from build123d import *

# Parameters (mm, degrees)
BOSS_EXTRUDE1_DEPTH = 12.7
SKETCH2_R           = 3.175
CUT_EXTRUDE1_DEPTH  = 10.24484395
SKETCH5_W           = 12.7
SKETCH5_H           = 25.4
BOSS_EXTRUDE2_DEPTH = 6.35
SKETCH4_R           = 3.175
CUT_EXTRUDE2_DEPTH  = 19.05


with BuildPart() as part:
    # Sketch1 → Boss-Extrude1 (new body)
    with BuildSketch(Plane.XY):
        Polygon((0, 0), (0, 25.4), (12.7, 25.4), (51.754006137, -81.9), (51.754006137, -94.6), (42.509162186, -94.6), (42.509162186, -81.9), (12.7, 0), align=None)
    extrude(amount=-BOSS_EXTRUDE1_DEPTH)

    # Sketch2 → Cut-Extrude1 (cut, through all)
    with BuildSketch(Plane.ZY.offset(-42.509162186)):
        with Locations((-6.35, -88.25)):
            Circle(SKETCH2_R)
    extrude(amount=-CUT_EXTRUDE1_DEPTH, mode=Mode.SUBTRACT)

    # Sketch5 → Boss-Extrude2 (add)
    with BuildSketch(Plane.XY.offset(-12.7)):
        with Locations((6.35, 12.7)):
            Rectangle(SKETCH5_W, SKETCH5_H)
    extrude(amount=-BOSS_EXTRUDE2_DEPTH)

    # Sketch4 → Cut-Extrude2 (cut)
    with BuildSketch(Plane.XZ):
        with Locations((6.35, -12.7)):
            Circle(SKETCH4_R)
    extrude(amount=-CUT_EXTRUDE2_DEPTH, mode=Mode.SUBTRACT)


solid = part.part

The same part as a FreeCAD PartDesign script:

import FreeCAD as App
import Part
import Sketcher
Q = App.Units.Quantity


def add_polygon(sketch, points):
    """Adds a closed chain of lines whose ends are joined by coincident constraints."""
    first, n = sketch.GeometryCount, len(points)
    for a, b in zip(points, points[1:] + points[:1]):
        sketch.addGeometry(Part.LineSegment(App.Vector(*a, 0), App.Vector(*b, 0)), False)
    for i in range(n):
        sketch.addConstraint(Sketcher.Constraint("Coincident", first + i, 2, first + (i + 1) % n, 1))

doc = App.newDocument("Part")
body = doc.addObject("PartDesign::Body", "Body")

# Sketch on XY plane
sketch1 = body.newObject("Sketcher::SketchObject", "Sketch")
sketch1.AttachmentSupport = (doc.getObject("XY_Plane"), [""])
sketch1.MapMode = "FlatFace"
add_polygon(sketch1, [(0, 25), (0, 0), (13, 0), (43, -82), (43, -95), (52, -95), (52, -82), (13, 25)])  # lines 0-7
sketch1.addConstraint([
    Sketcher.Constraint("Vertical", 0),
    Sketcher.Constraint("Horizontal", 1),
    Sketcher.Constraint("Vertical", 3),
    Sketcher.Constraint("Horizontal", 4),
    Sketcher.Constraint("Vertical", 5),
    Sketcher.Constraint("Horizontal", 7),
    Sketcher.Constraint("Coincident", 0, 2, -1, 1),
    Sketcher.Constraint("Parallel", 2, 6),
    Sketcher.Constraint("Horizontal", 2, 2, 5, 2),
    Sketcher.Constraint("Vertical", 1, 2, 6, 2),
    Sketcher.Constraint("Equal", 7, 3),
    Sketcher.Constraint("DistanceY", 0, 2, 0, 1, Q("1 in")),
    Sketcher.Constraint("DistanceX", 1, 1, 1, 2, Q("0.5 in")),
    Sketcher.Constraint("Angle", 2, Q("-70 deg")),
    Sketcher.Constraint("DistanceY", 2, 2, -1, 1, Q("81.9 mm")),
])
pad1 = body.newObject("PartDesign::Pad", "Pad")
pad1.Profile = sketch1
pad1.Length = Q("0.5 in")
pad1.Reversed = True

# Sketch on YZ plane
sketch2 = body.newObject("Sketcher::SketchObject", "Sketch001")
sketch2.AttachmentSupport = (doc.getObject("YZ_Plane"), [""])
sketch2.MapMode = "FlatFace"
sketch2.AttachmentOffset = App.Placement(App.Vector(0, 0, 42.509162), App.Rotation())
sketch2.addGeometry(Part.Circle(App.Vector(-88.2, -6.3, 0), App.Vector(0, 0, 1), 3.2), False)
sketch2.addConstraint([
    Sketcher.Constraint("Diameter", 0, Q("0.25 in")),
    Sketcher.Constraint("DistanceY", 0, 3, -1, 1, Q("0.25 in")),
    Sketcher.Constraint("DistanceX", 0, 3, -1, 1, Q("88.25 mm")),
])
pocket1 = body.newObject("PartDesign::Pocket", "Pocket")
pocket1.Profile = sketch2
pocket1.Type = "ThroughAll"
pocket1.Reversed = True

# Sketch on XY plane
sketch3 = body.newObject("Sketcher::SketchObject", "Sketch002")
sketch3.AttachmentSupport = (doc.getObject("XY_Plane"), [""])
sketch3.MapMode = "FlatFace"
sketch3.AttachmentOffset = App.Placement(App.Vector(0, 0, -0.5 * 25.4), App.Rotation())
add_polygon(sketch3, [(0, 25), (0, 0), (13, 0), (13, 25)])  # lines 0-3
sketch3.addConstraint([
    Sketcher.Constraint("Vertical", 0),
    Sketcher.Constraint("Horizontal", 1),
    Sketcher.Constraint("Vertical", 2),
    Sketcher.Constraint("Horizontal", 3),
    Sketcher.Constraint("Coincident", 0, 2, -1, 1),
    Sketcher.Constraint("DistanceY", 0, 2, 0, 1, Q("1 in")),
    Sketcher.Constraint("DistanceX", 1, 1, 1, 2, Q("0.5 in")),
])
pad2 = body.newObject("PartDesign::Pad", "Pad001")
pad2.Profile = sketch3
pad2.Length = Q("0.25 in")
pad2.Reversed = True

# Sketch on XZ plane
sketch4 = body.newObject("Sketcher::SketchObject", "Sketch003")
sketch4.AttachmentSupport = (doc.getObject("XZ_Plane"), [""])
sketch4.MapMode = "FlatFace"
sketch4.addGeometry(Part.Circle(App.Vector(6.3, -12.7, 0), App.Vector(0, 0, 1), 3.2), False)
sketch4.addConstraint([
    Sketcher.Constraint("Diameter", 0, Q("0.25 in")),
    Sketcher.Constraint("DistanceY", 0, 3, -1, 1, Q("0.5 in")),
    Sketcher.Constraint("DistanceX", -1, 1, 0, 3, Q("0.25 in")),
])
pocket2 = body.newObject("PartDesign::Pocket", "Pocket001")
pocket2.Profile = sketch4
pocket2.Length = Q("0.75 in")

doc.recompute()
